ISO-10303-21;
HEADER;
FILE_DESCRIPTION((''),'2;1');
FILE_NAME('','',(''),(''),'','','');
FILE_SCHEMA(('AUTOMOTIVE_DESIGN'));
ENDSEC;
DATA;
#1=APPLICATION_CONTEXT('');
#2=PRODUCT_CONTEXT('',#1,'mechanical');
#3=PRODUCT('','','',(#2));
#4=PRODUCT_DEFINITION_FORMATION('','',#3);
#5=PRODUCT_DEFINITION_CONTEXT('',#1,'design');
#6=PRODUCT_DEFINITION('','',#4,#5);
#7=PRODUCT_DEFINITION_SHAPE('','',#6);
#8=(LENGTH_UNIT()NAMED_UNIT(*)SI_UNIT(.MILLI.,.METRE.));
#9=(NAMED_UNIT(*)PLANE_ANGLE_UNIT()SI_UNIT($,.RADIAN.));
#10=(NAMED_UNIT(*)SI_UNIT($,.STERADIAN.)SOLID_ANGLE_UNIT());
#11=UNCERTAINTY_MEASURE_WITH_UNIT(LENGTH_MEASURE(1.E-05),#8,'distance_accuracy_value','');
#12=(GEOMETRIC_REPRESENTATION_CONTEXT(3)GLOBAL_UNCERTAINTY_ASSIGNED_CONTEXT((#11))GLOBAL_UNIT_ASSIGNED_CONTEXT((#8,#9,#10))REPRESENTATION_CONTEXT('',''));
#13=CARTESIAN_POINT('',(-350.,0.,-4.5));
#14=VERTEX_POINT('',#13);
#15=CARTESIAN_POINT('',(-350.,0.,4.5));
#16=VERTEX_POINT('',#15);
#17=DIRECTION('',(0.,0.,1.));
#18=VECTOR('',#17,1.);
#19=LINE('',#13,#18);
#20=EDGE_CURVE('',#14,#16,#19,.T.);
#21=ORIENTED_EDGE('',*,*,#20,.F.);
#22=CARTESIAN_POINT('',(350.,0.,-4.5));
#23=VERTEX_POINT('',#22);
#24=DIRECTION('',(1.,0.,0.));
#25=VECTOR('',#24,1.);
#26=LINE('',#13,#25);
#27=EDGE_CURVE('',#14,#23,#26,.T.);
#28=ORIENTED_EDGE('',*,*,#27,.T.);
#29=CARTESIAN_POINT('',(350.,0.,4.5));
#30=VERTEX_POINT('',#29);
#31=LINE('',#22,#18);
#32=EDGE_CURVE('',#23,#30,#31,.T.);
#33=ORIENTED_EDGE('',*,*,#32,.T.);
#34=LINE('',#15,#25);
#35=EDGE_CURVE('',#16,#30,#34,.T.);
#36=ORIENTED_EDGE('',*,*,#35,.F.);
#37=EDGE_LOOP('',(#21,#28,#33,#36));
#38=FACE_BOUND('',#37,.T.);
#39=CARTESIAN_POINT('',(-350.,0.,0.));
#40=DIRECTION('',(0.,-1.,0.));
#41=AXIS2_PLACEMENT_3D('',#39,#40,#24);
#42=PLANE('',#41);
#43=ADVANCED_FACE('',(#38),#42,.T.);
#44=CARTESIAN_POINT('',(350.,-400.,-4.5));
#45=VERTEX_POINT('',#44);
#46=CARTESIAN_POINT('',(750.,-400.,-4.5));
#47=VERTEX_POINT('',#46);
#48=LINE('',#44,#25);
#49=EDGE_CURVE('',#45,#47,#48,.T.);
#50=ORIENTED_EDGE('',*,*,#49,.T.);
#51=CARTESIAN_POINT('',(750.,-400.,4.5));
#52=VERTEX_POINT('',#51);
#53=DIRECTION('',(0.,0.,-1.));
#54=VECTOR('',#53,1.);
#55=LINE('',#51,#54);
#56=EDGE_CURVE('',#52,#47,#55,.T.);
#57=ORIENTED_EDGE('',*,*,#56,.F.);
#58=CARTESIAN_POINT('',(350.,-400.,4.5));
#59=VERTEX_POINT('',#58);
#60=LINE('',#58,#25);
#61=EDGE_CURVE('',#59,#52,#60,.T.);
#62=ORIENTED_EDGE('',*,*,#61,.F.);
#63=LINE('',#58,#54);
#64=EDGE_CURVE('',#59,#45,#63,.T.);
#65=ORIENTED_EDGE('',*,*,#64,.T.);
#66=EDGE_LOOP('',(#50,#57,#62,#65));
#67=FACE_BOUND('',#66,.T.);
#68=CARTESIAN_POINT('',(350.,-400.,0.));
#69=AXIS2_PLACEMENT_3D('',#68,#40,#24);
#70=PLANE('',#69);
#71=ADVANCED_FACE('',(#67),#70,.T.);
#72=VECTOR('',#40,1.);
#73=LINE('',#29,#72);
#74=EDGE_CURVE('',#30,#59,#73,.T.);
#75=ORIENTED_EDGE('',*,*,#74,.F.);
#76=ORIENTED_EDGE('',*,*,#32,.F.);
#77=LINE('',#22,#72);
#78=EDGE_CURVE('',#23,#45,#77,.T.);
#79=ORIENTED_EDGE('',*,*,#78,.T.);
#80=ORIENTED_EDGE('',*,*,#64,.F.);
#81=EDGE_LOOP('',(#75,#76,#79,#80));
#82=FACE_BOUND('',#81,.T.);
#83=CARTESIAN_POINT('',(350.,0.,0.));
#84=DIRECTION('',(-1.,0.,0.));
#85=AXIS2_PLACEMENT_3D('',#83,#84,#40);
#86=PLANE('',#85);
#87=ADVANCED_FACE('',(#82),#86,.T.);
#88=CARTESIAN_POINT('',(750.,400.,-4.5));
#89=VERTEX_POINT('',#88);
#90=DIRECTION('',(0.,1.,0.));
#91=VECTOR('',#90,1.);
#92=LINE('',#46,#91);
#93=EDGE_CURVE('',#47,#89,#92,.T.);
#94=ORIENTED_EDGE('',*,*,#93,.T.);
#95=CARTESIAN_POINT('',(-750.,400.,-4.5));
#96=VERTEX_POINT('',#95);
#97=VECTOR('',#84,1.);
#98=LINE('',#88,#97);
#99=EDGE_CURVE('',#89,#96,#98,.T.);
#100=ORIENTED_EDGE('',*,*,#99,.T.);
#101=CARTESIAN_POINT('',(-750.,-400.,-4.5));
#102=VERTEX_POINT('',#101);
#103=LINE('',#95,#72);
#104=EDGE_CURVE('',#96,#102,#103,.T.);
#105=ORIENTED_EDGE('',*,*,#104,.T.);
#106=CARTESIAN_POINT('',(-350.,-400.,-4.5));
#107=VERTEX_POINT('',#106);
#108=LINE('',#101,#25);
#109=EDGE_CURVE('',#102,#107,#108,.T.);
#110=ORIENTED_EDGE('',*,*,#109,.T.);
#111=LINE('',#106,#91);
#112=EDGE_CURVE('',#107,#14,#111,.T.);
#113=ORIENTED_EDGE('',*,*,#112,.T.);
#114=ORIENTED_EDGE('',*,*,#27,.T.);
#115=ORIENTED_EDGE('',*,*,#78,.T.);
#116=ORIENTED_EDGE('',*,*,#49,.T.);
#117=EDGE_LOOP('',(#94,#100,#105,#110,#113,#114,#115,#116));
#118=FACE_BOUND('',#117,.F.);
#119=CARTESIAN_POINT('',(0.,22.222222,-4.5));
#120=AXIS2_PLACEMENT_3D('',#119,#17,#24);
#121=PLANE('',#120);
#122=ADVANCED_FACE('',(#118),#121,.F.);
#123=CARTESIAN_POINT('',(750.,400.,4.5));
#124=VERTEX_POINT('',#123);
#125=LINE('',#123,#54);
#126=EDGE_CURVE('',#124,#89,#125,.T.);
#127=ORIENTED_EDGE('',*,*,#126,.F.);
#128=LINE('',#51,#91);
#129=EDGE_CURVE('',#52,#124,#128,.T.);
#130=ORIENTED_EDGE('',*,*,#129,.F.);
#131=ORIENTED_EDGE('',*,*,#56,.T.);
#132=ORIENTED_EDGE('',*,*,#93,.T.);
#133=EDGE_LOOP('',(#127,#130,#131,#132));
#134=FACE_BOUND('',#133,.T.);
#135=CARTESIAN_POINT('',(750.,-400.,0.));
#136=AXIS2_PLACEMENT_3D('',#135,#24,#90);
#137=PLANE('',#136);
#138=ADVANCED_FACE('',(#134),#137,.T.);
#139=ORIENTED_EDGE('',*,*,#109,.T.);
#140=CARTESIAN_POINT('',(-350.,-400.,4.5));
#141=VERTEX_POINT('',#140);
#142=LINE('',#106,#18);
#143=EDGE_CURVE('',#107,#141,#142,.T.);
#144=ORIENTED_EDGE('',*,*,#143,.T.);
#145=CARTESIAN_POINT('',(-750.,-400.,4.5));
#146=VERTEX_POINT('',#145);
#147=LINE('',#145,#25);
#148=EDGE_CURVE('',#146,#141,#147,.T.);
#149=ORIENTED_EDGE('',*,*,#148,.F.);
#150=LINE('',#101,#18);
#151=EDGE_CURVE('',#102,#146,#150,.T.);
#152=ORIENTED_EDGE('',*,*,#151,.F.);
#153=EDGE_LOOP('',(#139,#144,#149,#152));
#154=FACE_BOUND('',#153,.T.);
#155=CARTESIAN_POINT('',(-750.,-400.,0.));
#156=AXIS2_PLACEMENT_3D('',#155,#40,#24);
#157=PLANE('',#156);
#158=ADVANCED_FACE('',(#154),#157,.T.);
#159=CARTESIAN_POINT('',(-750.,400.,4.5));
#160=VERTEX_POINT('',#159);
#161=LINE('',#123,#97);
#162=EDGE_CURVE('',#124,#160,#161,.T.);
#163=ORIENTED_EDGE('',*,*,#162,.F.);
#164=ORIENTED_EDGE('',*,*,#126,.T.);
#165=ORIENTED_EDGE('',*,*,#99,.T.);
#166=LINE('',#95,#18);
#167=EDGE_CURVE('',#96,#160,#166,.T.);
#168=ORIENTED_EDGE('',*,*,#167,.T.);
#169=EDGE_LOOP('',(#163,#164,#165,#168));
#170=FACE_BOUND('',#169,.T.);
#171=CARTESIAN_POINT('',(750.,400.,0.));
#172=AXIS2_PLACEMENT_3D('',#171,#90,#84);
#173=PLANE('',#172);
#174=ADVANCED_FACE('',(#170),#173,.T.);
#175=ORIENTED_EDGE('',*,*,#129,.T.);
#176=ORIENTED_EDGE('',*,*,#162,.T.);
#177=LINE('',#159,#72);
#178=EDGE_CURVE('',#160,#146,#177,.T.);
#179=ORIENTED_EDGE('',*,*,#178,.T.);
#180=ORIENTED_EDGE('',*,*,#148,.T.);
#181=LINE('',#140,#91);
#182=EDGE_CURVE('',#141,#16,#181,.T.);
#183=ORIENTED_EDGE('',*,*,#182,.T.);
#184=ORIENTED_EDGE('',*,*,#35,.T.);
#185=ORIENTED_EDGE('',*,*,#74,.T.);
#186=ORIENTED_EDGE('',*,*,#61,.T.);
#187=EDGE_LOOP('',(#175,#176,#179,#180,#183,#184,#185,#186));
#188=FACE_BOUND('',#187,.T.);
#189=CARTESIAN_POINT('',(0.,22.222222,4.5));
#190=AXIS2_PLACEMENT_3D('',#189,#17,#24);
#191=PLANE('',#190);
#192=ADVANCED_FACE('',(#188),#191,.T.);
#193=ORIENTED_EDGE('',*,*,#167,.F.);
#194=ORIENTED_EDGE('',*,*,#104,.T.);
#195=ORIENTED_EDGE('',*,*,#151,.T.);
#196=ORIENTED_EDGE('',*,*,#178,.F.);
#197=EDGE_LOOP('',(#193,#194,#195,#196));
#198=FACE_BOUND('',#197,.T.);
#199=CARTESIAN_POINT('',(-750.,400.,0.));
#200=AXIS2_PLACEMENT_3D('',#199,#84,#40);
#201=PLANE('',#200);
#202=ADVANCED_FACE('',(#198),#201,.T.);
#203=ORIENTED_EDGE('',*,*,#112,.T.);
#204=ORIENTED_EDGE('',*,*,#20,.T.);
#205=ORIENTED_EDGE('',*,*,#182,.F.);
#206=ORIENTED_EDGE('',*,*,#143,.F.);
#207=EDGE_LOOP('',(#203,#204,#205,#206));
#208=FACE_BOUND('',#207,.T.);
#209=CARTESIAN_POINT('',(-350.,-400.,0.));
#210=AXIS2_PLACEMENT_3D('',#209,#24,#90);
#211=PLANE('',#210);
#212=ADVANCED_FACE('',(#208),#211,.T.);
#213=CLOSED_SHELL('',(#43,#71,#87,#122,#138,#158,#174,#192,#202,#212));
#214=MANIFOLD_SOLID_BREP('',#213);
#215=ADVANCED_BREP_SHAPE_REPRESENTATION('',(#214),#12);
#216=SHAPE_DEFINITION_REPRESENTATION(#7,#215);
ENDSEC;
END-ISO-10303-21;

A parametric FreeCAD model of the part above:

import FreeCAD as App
import Part
import Sketcher

V = App.Vector


def add_polygon(sketch, points):
    """Adds a closed chain of lines whose ends are joined by coincident constraints."""
    first, n = sketch.GeometryCount, len(points)
    for a, b in zip(points, points[1:] + points[:1]):
        sketch.addGeometry(Part.LineSegment(App.Vector(*a, 0), App.Vector(*b, 0)), False)
    for i in range(n):
        sketch.addConstraint(Sketcher.Constraint("Coincident", first + i, 2, first + (i + 1) % n, 1))

doc = App.newDocument("Part")
params = doc.addObject("Spreadsheet::Sheet", "Params")
for row, (alias, value) in enumerate([
    ("sketch1_width", "1500 mm"),
    ("sketch1_width2", "400 mm"),
    ("pad1_length", "9 mm"),
], start=1):
    params.set(f"A{row}", alias)
    params.set(f"B{row}", "=" + value)
    params.setAlias(f"B{row}", alias)

body = doc.addObject("PartDesign::Body", "Body")

# Sketch on XY plane
sketch1 = body.newObject("Sketcher::SketchObject", "Sketch")
sketch1.AttachmentSupport = (doc.getObject("XY_Plane"), [""])
sketch1.MapMode = "FlatFace"
add_polygon(sketch1, [(750, 400), (-750, 400), (-750, -400), (-350, -400), (-350, 0), (350, 0), (350, -400), (750, -400)])  # lines 0-7
sketch1.addConstraint([
    Sketcher.Constraint("Horizontal", 0),
    Sketcher.Constraint("Vertical", 1),
    Sketcher.Constraint("Horizontal", 2),
    Sketcher.Constraint("Vertical", 3),
    Sketcher.Constraint("Horizontal", 4),
    Sketcher.Constraint("Vertical", 5),
    Sketcher.Constraint("Horizontal", 6),
    Sketcher.Constraint("Vertical", 7),
    Sketcher.Constraint("Symmetric", 3, 2, 4, 2, -1, 1),
    Sketcher.Constraint("Symmetric", 0, 2, 6, 2, -1, 1),
    Sketcher.Constraint("Horizontal", 2, 2, 5, 2),
    Sketcher.Constraint("Equal", 6, 3),
    Sketcher.Constraint("DistanceX", 0, 2, 0, 1, 1500.0),
    Sketcher.Constraint("DistanceX", 2, 1, 2, 2, 400.0),
])
sketch1.setExpression("Constraints[20]", "Params.sketch1_width")
sketch1.setExpression("Constraints[21]", "Params.sketch1_width2")
pad1 = body.newObject("PartDesign::Pad", "Pad")
pad1.Profile = sketch1
pad1.setExpression("Length", "Params.pad1_length")
pad1.Midplane = True

doc.recompute()
